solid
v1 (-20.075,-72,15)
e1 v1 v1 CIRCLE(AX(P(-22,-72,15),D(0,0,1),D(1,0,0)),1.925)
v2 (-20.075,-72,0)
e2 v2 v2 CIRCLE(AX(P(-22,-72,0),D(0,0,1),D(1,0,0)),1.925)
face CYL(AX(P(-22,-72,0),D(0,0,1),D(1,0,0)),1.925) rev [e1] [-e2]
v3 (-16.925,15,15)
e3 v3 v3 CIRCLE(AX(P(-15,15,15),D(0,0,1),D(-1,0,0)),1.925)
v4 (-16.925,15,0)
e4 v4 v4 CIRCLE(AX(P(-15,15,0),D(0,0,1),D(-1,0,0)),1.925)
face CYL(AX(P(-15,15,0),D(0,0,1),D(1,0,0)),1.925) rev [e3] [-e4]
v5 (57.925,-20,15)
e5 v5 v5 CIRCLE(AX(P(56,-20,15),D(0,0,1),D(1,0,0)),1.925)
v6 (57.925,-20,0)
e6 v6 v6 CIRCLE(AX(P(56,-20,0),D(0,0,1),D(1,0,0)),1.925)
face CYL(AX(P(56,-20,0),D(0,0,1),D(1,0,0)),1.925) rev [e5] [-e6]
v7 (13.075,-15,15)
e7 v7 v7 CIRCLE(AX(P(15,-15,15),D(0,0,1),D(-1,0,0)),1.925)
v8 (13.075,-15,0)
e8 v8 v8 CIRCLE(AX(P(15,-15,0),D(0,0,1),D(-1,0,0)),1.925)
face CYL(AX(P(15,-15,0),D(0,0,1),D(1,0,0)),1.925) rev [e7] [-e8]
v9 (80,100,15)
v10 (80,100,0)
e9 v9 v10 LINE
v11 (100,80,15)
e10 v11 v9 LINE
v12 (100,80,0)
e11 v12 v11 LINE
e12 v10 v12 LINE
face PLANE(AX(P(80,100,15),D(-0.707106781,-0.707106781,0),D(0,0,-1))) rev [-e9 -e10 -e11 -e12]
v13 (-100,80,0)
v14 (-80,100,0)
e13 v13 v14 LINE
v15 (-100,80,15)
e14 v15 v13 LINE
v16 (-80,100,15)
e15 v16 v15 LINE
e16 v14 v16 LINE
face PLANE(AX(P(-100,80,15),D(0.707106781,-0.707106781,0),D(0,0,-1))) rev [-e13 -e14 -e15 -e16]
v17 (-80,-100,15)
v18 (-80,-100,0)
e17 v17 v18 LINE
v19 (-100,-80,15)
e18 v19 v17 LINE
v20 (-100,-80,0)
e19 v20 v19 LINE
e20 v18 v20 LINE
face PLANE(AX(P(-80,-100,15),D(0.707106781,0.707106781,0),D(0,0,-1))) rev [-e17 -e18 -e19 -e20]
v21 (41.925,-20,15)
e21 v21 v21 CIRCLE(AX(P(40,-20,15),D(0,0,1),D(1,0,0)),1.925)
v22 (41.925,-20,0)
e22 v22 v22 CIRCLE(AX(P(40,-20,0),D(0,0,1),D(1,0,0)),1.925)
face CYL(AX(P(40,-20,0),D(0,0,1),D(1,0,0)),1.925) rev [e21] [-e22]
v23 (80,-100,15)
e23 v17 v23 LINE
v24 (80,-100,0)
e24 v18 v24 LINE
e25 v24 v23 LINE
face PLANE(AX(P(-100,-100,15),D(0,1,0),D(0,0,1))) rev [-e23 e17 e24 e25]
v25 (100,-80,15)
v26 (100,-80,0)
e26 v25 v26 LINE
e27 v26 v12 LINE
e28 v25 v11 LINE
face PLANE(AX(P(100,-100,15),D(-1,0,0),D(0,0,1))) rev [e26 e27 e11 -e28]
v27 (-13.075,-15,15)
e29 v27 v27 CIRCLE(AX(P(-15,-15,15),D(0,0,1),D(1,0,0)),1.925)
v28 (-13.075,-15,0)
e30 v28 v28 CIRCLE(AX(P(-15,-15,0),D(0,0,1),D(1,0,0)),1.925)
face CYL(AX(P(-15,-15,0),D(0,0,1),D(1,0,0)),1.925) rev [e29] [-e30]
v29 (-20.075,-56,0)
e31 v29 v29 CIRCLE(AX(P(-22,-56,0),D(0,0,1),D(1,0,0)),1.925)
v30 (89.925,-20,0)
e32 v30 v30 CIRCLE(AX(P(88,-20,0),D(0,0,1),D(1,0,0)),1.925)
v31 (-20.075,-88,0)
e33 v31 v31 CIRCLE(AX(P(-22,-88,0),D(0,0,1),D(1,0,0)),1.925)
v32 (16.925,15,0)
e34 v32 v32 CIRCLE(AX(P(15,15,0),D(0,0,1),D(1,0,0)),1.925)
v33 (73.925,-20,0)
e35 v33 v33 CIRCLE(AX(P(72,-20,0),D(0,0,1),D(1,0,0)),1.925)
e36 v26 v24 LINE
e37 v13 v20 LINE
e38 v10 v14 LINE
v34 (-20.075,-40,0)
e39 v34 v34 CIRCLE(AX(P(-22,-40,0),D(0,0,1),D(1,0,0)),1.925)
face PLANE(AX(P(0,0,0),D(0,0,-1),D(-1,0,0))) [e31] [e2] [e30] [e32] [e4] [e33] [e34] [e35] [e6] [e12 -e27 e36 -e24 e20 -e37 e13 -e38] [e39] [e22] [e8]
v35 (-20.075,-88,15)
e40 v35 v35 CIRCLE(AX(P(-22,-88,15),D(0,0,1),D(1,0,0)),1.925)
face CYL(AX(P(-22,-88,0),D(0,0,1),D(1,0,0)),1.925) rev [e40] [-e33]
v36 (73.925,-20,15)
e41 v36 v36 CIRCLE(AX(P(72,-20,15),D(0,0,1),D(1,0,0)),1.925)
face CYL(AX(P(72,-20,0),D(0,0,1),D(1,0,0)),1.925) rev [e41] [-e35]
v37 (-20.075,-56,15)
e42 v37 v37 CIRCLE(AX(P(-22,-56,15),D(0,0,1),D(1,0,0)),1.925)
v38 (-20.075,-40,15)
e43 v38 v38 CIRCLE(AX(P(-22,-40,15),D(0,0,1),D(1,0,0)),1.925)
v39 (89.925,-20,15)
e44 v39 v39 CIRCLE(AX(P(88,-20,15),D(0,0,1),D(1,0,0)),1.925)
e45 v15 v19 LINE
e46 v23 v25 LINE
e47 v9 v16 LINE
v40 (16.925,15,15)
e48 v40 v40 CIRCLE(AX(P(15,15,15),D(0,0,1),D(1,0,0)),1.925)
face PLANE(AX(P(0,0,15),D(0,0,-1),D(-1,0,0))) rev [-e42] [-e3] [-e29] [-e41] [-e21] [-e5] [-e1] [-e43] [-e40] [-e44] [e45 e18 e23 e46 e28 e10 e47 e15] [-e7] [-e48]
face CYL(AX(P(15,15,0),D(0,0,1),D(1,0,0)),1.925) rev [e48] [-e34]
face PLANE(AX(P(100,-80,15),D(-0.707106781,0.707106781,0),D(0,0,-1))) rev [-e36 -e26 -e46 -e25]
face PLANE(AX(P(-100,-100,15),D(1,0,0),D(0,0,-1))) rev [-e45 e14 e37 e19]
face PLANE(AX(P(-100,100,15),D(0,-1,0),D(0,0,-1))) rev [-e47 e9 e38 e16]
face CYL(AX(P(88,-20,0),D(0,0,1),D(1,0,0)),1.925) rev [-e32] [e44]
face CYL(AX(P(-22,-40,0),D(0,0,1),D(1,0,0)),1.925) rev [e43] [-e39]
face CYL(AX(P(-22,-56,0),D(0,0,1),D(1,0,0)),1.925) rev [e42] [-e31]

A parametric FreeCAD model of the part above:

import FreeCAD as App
import Part
import Sketcher

V = App.Vector


def edges_at(feature, points):
    """Names of the edges that pass closest to the given points."""
    edges = feature.Shape.Edges
    near = lambda p: min(range(len(edges)), key=lambda i: edges[i].distToShape(Part.Vertex(*p))[0])
    return sorted({f"Edge{near(p) + 1}" for p in points})


def add_polygon(sketch, points):
    """Adds a closed chain of lines whose ends are joined by coincident constraints."""
    first, n = sketch.GeometryCount, len(points)
    for a, b in zip(points, points[1:] + points[:1]):
        sketch.addGeometry(Part.LineSegment(App.Vector(*a, 0), App.Vector(*b, 0)), False)
    for i in range(n):
        sketch.addConstraint(Sketcher.Constraint("Coincident", first + i, 2, first + (i + 1) % n, 1))

doc = App.newDocument("Part")
body = doc.addObject("PartDesign::Body", "Body")

sketch1 = body.newObject("Sketcher::SketchObject", "Sketch")
sketch1.AttachmentSupport = (doc.getObject("XY_Plane"), [""])
sketch1.MapMode = "FlatFace"
add_polygon(sketch1, [(-100, 100), (-100, -100), (100, -100), (100, 100)])
sketch1.addConstraint(Sketcher.Constraint("Vertical", 0))
sketch1.addConstraint(Sketcher.Constraint("Horizontal", 1))
sketch1.addConstraint(Sketcher.Constraint("Vertical", 2))
sketch1.addConstraint(Sketcher.Constraint("Horizontal", 3))
sketch1.addConstraint(Sketcher.Constraint("Symmetric", 0, 2, 2, 2, -1, 1))
sketch1.addConstraint(Sketcher.Constraint("Equal", 3, 0))
sketch1.addConstraint(Sketcher.Constraint("DistanceX", 1, 1, 1, 2, 200.0))
pad1 = body.newObject("PartDesign::Pad", "Pad")
pad1.Profile = sketch1
pad1.Length = 15
doc.recompute()

chamfer = body.newObject("PartDesign::Chamfer", "Chamfer")
chamfer.Base = (pad1, edges_at(pad1, [
    (100, -100, 7.5),
    (-100, -100, 7.5),
    (-100, 100, 7.5),
    (100, 100, 7.5),
]))
chamfer.Size = 20

sketch2 = body.newObject("Sketcher::SketchObject", "Sketch001")
sketch2.AttachmentSupport = (doc.getObject("XY_Plane"), [""])
sketch2.MapMode = "FlatFace"
sketch2.AttachmentOffset = App.Placement(V(0, 0, 15), App.Rotation())
sketch2.addGeometry(Part.Circle(V(-22, -88, 0), V(0, 0, 1), 1.925), False)
sketch2.addGeometry(Part.Circle(V(-22, -72, 0), V(0, 0, 1), 1.925), False)
sketch2.addGeometry(Part.Circle(V(-22, -56, 0), V(0, 0, 1), 1.925), False)
sketch2.addGeometry(Part.Circle(V(-22, -40, 0), V(0, 0, 1), 1.925), False)
sketch2.addConstraint(Sketcher.Constraint("Equal", 0, 1))
sketch2.addConstraint(Sketcher.Constraint("Equal", 1, 2))
sketch2.addConstraint(Sketcher.Constraint("Equal", 2, 3))
sketch2.addConstraint(Sketcher.Constraint("Vertical", 0, 3, 1, 3))
sketch2.addConstraint(Sketcher.Constraint("Vertical", 1, 3, 2, 3))
sketch2.addConstraint(Sketcher.Constraint("Vertical", 2, 3, 3, 3))
sketch2.addConstraint(Sketcher.Constraint("Diameter", 0, 3.85))
sketch2.addConstraint(Sketcher.Constraint("DistanceX", 0, 3, -1, 1, 22.0))
sketch2.addConstraint(Sketcher.Constraint("DistanceY", 0, 3, -1, 1, 88.0))
sketch2.addConstraint(Sketcher.Constraint("DistanceY", 1, 3, -1, 1, 72.0))
sketch2.addConstraint(Sketcher.Constraint("DistanceY", 2, 3, -1, 1, 56.0))
sketch2.addConstraint(Sketcher.Constraint("DistanceY", 3, 3, -1, 1, 40.0))
pocket1 = body.newObject("PartDesign::Pocket", "Pocket")
pocket1.Profile = sketch2
pocket1.Type = "ThroughAll"

sketch3 = body.newObject("Sketcher::SketchObject", "Sketch002")
sketch3.AttachmentSupport = (doc.getObject("XY_Plane"), [""])
sketch3.MapMode = "FlatFace"
sketch3.AttachmentOffset = App.Placement(V(0, 0, 15), App.Rotation())
sketch3.addGeometry(Part.Circle(V(88, -20, 0), V(0, 0, 1), 1.925), False)
sketch3.addGeometry(Part.Circle(V(72, -20, 0), V(0, 0, 1), 1.925), False)
sketch3.addGeometry(Part.Circle(V(56, -20, 0), V(0, 0, 1), 1.925), False)
sketch3.addGeometry(Part.Circle(V(40, -20, 0), V(0, 0, 1), 1.925), False)
sketch3.addConstraint(Sketcher.Constraint("Equal", 0, 1))
sketch3.addConstraint(Sketcher.Constraint("Equal", 1, 2))
sketch3.addConstraint(Sketcher.Constraint("Equal", 2, 3))
sketch3.addConstraint(Sketcher.Constraint("Horizontal", 0, 3, 1, 3))
sketch3.addConstraint(Sketcher.Constraint("Horizontal", 1, 3, 2, 3))
sketch3.addConstraint(Sketcher.Constraint("Horizontal", 2, 3, 3, 3))
sketch3.addConstraint(Sketcher.Constraint("Diameter", 0, 3.85))
sketch3.addConstraint(Sketcher.Constraint("DistanceX", -1, 1, 0, 3, 88.0))
sketch3.addConstraint(Sketcher.Constraint("DistanceY", 0, 3, -1, 1, 20.0))
sketch3.addConstraint(Sketcher.Constraint("DistanceX", -1, 1, 1, 3, 72.0))
sketch3.addConstraint(Sketcher.Constraint("DistanceX", -1, 1, 2, 3, 56.0))
sketch3.addConstraint(Sketcher.Constraint("DistanceX", -1, 1, 3, 3, 40.0))
pocket2 = body.newObject("PartDesign::Pocket", "Pocket001")
pocket2.Profile = sketch3
pocket2.Type = "ThroughAll"

sketch4 = body.newObject("Sketcher::SketchObject", "Sketch003")
sketch4.AttachmentSupport = (doc.getObject("XY_Plane"), [""])
sketch4.MapMode = "FlatFace"
sketch4.AttachmentOffset = App.Placement(V(0, 0, 15), App.Rotation())
sketch4.addGeometry(Part.Circle(V(15, 15, 0), V(0, 0, 1), 1.925), False)
sketch4.addGeometry(Part.Circle(V(15, -15, 0), V(0, 0, 1), 1.925), False)
sketch4.addGeometry(Part.Circle(V(-15, -15, 0), V(0, 0, 1), 1.925), False)
sketch4.addGeometry(Part.Circle(V(-15, 15, 0), V(0, 0, 1), 1.925), False)
sketch4.addConstraint(Sketcher.Constraint("Equal", 0, 1))
sketch4.addConstraint(Sketcher.Constraint("Equal", 1, 2))
sketch4.addConstraint(Sketcher.Constraint("Equal", 2, 3))
sketch4.addConstraint(Sketcher.Constraint("Symmetric", 0, 3, 2, 3, -1, 1))
sketch4.addConstraint(Sketcher.Constraint("Symmetric", 1, 3, 3, 3, -1, 1))
sketch4.addConstraint(Sketcher.Constraint("Symmetric", 1, 3, 2, 3, -2))
sketch4.addConstraint(Sketcher.Constraint("Diameter", 0, 3.85))
sketch4.addConstraint(Sketcher.Constraint("DistanceX", -1, 1, 0, 3, 15.0))
sketch4.addConstraint(Sketcher.Constraint("DistanceY", -1, 1, 0, 3, 15.0))
pocket3 = body.newObject("PartDesign::Pocket", "Pocket002")
pocket3.Profile = sketch4
pocket3.Type = "ThroughAll"

doc.recompute()
